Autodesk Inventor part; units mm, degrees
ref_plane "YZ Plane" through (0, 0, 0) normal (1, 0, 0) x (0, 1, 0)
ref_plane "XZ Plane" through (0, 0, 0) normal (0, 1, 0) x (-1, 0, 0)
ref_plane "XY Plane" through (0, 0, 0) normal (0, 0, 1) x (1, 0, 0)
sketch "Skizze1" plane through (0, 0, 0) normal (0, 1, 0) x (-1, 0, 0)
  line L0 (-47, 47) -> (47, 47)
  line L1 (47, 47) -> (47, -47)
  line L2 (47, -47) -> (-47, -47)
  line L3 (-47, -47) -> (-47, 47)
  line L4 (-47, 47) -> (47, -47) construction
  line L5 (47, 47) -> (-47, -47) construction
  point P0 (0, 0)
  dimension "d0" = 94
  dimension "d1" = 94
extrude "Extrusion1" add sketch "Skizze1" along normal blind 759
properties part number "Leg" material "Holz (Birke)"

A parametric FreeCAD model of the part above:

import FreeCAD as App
import Part
import Sketcher
from FreeCAD import Vector
Q = App.Units.Quantity


def add_polygon(sketch, points):
    """Adds a closed chain of lines whose ends are joined by coincident constraints."""
    first, n = sketch.GeometryCount, len(points)
    for a, b in zip(points, points[1:] + points[:1]):
        sketch.addGeometry(Part.LineSegment(App.Vector(*a, 0), App.Vector(*b, 0)), False)
    for i in range(n):
        sketch.addConstraint(Sketcher.Constraint("Coincident", first + i, 2, first + (i + 1) % n, 1))

doc = App.newDocument("Part")
body = doc.addObject("PartDesign::Body", "Body")

# Sketch on XZ plane
sketch1 = doc.addObject("Sketcher::SketchObject", "Sketch")
body.addObject(sketch1)
sketch1.AttachmentSupport = (doc.XZ_Plane, [""])
sketch1.MapMode = "FlatFace"
add_polygon(sketch1, [(-47, 47), (47, 47), (47, -47), (-47, -47)])  # lines 0-3
sketch1.addConstraint([
    Sketcher.Constraint("Horizontal", 0),
    Sketcher.Constraint("Vertical", 1),
    Sketcher.Constraint("Horizontal", 2),
    Sketcher.Constraint("Vertical", 3),
    Sketcher.Constraint("Symmetric", 0, 2, 2, 2, -1, 1),
    Sketcher.Constraint("Equal", 2, 1),
    Sketcher.Constraint("DistanceX", 0, 1, 0, 2, Q("94 mm")),
])
pad1 = doc.addObject("PartDesign::Pad", "Pad")
body.addObject(pad1)
pad1.Profile = sketch1
pad1.Length = 759
pad1.Reversed = True

doc.recompute()
